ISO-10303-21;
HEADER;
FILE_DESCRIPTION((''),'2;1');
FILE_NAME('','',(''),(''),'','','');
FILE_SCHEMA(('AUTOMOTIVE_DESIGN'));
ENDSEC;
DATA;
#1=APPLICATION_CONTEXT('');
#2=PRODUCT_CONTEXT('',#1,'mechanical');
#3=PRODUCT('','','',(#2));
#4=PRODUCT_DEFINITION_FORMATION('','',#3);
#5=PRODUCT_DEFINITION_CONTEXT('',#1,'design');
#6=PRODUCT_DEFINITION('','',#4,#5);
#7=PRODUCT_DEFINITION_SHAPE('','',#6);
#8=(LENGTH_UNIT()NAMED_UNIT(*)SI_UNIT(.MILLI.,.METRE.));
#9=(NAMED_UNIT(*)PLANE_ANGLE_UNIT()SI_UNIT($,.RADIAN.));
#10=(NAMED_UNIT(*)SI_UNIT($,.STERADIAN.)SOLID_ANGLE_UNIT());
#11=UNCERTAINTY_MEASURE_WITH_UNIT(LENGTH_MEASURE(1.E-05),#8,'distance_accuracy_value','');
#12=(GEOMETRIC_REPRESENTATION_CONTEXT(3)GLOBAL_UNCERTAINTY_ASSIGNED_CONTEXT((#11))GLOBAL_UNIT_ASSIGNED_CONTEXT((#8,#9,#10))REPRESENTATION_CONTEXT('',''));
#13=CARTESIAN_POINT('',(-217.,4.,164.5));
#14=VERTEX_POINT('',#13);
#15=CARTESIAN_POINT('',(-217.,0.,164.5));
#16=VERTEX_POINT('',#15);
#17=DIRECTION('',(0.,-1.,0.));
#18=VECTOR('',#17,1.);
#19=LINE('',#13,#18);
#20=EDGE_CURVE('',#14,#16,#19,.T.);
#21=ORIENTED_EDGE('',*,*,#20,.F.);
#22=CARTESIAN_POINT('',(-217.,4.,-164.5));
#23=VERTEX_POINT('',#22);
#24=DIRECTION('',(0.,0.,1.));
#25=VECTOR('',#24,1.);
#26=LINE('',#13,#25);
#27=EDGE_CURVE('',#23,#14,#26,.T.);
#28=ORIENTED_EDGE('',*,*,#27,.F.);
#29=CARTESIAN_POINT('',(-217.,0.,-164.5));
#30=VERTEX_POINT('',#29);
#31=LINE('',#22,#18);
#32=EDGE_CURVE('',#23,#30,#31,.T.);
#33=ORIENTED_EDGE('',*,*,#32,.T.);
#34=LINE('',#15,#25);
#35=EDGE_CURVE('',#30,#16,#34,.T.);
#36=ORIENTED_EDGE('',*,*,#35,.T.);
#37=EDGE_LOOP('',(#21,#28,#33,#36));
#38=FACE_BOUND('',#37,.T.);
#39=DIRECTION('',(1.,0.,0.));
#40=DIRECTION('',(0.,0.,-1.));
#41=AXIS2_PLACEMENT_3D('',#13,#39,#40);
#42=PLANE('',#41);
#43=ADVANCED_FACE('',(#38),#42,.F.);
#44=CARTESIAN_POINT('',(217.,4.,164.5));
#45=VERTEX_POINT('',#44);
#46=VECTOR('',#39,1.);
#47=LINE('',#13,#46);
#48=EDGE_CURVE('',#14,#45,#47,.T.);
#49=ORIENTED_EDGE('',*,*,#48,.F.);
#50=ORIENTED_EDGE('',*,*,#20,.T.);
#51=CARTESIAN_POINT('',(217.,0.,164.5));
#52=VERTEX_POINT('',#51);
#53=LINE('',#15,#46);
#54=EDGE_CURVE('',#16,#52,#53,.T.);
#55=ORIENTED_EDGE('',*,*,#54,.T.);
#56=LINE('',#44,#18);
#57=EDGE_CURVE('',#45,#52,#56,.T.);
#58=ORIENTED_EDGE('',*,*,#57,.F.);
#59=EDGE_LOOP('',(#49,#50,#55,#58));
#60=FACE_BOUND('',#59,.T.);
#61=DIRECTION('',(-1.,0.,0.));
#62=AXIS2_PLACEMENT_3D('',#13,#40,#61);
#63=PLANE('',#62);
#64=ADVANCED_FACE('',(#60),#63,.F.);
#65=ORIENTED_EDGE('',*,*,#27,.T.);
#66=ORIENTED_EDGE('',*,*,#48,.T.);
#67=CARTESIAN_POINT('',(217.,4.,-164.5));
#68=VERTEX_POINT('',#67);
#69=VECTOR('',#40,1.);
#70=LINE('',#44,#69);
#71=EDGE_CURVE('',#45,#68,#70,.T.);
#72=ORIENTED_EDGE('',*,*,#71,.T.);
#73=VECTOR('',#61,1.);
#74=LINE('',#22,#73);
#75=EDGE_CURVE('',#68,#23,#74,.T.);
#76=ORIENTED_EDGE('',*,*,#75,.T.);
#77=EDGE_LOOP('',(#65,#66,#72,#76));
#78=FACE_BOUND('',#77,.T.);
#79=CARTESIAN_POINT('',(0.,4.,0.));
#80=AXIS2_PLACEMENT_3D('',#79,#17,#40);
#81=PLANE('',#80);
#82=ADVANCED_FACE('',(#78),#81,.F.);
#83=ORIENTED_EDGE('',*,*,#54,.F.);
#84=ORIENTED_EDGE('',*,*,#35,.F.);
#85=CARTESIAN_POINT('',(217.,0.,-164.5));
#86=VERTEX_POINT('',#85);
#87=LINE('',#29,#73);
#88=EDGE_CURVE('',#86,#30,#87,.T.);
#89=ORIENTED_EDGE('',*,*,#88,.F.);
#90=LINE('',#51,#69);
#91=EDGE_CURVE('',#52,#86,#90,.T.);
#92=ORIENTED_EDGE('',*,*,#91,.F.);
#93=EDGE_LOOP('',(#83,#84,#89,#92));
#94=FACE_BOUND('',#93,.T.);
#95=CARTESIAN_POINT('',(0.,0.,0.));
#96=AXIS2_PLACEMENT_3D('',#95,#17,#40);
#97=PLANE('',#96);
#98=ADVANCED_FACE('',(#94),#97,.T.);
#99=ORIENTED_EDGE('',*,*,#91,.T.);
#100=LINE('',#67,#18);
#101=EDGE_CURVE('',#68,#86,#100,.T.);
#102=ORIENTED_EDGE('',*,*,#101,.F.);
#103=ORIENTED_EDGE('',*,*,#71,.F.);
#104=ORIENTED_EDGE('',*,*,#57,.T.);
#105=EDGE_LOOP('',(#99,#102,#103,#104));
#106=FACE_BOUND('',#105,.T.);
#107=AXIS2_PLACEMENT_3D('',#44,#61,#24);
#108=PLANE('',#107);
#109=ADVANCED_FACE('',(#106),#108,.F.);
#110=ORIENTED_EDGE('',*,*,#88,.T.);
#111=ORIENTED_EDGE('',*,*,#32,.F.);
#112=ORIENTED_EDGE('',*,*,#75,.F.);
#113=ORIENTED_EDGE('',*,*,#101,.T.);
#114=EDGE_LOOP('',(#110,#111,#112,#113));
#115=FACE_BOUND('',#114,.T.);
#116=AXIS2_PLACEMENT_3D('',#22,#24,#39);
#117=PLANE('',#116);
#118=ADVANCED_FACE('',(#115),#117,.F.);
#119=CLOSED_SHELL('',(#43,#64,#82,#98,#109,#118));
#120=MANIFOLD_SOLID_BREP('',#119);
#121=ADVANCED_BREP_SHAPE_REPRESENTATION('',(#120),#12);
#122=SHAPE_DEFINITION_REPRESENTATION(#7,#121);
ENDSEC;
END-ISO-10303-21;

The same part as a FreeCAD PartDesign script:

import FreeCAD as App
import Part
import Sketcher

doc = App.newDocument("Part")
body = doc.addObject("PartDesign::Body", "Body")

# Sketch on XZ plane
sketch1 = doc.addObject("Sketcher::SketchObject", "Sketch")
body.addObject(sketch1)
sketch1.AttachmentSupport = (doc.XZ_Plane, [""])
sketch1.MapMode = "FlatFace"
sketch1.addGeometry([
    Part.LineSegment(App.Vector(-217, -164, 0), App.Vector(-217, 164, 0)),
    Part.LineSegment(App.Vector(-217, 164, 0), App.Vector(217, 164, 0)),
    Part.LineSegment(App.Vector(217, 164, 0), App.Vector(217, -164, 0)),
    Part.LineSegment(App.Vector(217, -164, 0), App.Vector(-217, -164, 0)),
], False)
sketch1.addConstraint([
    Sketcher.Constraint("Coincident", 0, 2, 1, 1),
    Sketcher.Constraint("Coincident", 1, 2, 2, 1),
    Sketcher.Constraint("Coincident", 2, 2, 3, 1),
    Sketcher.Constraint("Coincident", 3, 2, 0, 1),
    Sketcher.Constraint("Vertical", 0),
    Sketcher.Constraint("Horizontal", 1),
    Sketcher.Constraint("Vertical", 2),
    Sketcher.Constraint("Horizontal", 3),
    Sketcher.Constraint("Symmetric", 0, 2, 2, 2, -1, 1),
    Sketcher.Constraint("DistanceX", 1, 1, 1, 2, 434.0),
    Sketcher.Constraint("DistanceY", 0, 1, 0, 2, 329.0),
])
pad1 = doc.addObject("PartDesign::Pad", "Pad")
body.addObject(pad1)
pad1.Profile = sketch1
pad1.Length = 4
pad1.Reversed = True

doc.recompute()
